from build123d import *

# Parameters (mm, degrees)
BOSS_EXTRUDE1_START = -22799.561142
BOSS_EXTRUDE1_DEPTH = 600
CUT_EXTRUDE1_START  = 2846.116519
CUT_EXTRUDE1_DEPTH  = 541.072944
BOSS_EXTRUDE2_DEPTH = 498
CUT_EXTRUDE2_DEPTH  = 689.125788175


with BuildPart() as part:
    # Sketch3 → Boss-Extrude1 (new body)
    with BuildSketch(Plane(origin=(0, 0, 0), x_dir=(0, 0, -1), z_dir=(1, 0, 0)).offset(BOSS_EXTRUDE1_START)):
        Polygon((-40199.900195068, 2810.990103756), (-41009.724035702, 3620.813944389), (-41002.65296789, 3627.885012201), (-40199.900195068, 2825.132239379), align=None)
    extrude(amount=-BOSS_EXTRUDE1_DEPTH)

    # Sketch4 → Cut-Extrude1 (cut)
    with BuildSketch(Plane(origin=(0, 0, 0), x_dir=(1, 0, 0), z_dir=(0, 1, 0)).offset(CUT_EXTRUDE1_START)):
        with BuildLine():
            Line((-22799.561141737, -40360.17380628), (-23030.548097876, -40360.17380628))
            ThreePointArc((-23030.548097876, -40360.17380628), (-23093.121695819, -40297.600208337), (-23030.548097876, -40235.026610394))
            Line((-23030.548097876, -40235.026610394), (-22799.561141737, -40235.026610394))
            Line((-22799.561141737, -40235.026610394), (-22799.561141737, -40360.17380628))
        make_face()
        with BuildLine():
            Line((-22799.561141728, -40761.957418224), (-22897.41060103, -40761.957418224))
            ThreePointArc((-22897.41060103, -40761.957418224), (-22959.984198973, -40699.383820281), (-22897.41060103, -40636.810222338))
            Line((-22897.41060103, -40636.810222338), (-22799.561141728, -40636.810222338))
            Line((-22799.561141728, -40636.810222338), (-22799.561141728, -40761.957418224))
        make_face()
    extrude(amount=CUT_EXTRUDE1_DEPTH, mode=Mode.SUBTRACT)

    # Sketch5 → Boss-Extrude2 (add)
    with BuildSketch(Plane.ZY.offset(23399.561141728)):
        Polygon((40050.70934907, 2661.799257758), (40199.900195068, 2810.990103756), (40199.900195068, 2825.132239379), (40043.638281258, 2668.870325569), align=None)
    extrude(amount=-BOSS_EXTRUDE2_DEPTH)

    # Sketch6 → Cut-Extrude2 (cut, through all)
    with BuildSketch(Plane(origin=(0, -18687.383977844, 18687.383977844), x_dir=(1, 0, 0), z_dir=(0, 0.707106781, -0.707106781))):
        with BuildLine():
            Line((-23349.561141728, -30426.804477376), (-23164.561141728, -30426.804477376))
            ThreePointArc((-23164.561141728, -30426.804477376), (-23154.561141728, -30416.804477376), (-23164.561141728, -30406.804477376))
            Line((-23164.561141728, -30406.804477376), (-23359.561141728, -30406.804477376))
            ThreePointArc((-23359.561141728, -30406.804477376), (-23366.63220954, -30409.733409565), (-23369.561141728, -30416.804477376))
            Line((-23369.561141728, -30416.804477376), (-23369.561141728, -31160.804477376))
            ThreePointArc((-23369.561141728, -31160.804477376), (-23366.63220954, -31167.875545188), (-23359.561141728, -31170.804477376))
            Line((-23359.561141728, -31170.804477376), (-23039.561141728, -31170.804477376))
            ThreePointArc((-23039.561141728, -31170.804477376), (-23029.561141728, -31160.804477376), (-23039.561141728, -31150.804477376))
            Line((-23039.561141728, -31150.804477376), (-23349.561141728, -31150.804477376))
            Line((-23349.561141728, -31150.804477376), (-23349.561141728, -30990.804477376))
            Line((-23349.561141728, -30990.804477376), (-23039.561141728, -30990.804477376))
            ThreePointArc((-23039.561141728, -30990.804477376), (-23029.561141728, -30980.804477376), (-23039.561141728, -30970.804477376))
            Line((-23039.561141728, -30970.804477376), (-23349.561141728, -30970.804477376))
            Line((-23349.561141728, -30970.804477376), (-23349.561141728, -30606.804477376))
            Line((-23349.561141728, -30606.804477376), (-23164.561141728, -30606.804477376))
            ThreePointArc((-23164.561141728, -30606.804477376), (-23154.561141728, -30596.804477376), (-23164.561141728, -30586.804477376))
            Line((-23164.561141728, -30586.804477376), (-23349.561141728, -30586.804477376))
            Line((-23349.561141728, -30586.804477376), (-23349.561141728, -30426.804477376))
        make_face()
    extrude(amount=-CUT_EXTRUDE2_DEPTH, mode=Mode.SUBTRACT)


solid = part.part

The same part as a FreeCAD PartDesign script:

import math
import FreeCAD as App
import Part
import Sketcher
Q = App.Units.Quantity

doc = App.newDocument("Part")
body = doc.addObject("PartDesign::Body", "Body")

# Sketch on YZ plane
sketch1 = body.newObject("Sketcher::SketchObject", "Sketch")
sketch1.AttachmentSupport = (doc.getObject("YZ_Plane"), [""])
sketch1.MapMode = "FlatFace"
sketch1.AttachmentOffset = App.Placement(App.Vector(0, 0, -22799.561142), App.Rotation())
sketch1.addGeometry(Part.LineSegment(App.Vector(3621, 41010, 0), App.Vector(2811, 40200, 0)), False)
sketch1.addGeometry(Part.LineSegment(App.Vector(2811, 40200, 0), App.Vector(2825, 40200, 0)), False)
sketch1.addGeometry(Part.LineSegment(App.Vector(2825, 40200, 0), App.Vector(3628, 41003, 0)), False)
sketch1.addGeometry(Part.LineSegment(App.Vector(3628, 41003, 0), App.Vector(3621, 41010, 0)), False)
sketch1.addConstraint(Sketcher.Constraint("Coincident", 0, 2, 1, 1))
sketch1.addConstraint(Sketcher.Constraint("Coincident", 1, 2, 2, 1))
sketch1.addConstraint(Sketcher.Constraint("Coincident", 2, 2, 3, 1))
sketch1.addConstraint(Sketcher.Constraint("Coincident", 3, 2, 0, 1))
sketch1.addConstraint(Sketcher.Constraint("Horizontal", 1))
sketch1.addConstraint(Sketcher.Constraint("Parallel", 0, 2))
sketch1.addConstraint(Sketcher.Constraint("Perpendicular", 2, 3))
sketch1.addConstraint(Sketcher.Constraint("Angle", 0, Q("-135 deg")))
sketch1.addConstraint(Sketcher.Constraint("Distance", 3, Q("10 mm")))
sketch1.addConstraint(Sketcher.Constraint("Distance", 0, Q("1145.263859 mm")))
sketch1.addConstraint(Sketcher.Constraint("DistanceX", -1, 1, 1, 2, Q("2825.132239 mm")))
sketch1.addConstraint(Sketcher.Constraint("DistanceY", -1, 1, 0, 2, Q("40199.900195 mm")))
pad1 = body.newObject("PartDesign::Pad", "Pad")
pad1.Profile = sketch1
pad1.Length = 600
pad1.Reversed = True

# Sketch on XZ plane
sketch2 = body.newObject("Sketcher::SketchObject", "Sketch001")
sketch2.AttachmentSupport = (doc.getObject("XZ_Plane"), [""])
sketch2.MapMode = "FlatFace"
sketch2.AttachmentOffset = App.Placement(App.Vector(0, 0, -2846.116519), App.Rotation())
sketch2.addGeometry(Part.LineSegment(App.Vector(-23031, 40360, 0), App.Vector(-22800, 40360, 0)), False)
sketch2.addGeometry(Part.LineSegment(App.Vector(-22800, 40360, 0), App.Vector(-22800, 40235, 0)), False)
sketch2.addGeometry(Part.LineSegment(App.Vector(-22800, 40235, 0), App.Vector(-23031, 40235, 0)), False)
sketch2.addGeometry(Part.ArcOfCircle(Part.Circle(App.Vector(-23031, 40298, 0), App.Vector(0, 0, 1), 63), math.radians(90), math.radians(270)), False)
sketch2.addGeometry(Part.LineSegment(App.Vector(-22897, 40762, 0), App.Vector(-22800, 40762, 0)), False)
sketch2.addGeometry(Part.LineSegment(App.Vector(-22800, 40762, 0), App.Vector(-22800, 40637, 0)), False)
sketch2.addGeometry(Part.LineSegment(App.Vector(-22800, 40637, 0), App.Vector(-22897, 40637, 0)), False)
sketch2.addGeometry(Part.ArcOfCircle(Part.Circle(App.Vector(-22897, 40699, 0), App.Vector(0, 0, 1), 63), math.radians(90), math.radians(270)), False)
sketch2.addConstraint(Sketcher.Constraint("Coincident", 0, 2, 1, 1))
sketch2.addConstraint(Sketcher.Constraint("Coincident", 1, 2, 2, 1))
sketch2.addConstraint(Sketcher.Constraint("Tangent", 2, 2, 3, 2))
sketch2.addConstraint(Sketcher.Constraint("Tangent", 3, 1, 0, 1))
sketch2.addConstraint(Sketcher.Constraint("Coincident", 4, 2, 5, 1))
sketch2.addConstraint(Sketcher.Constraint("Coincident", 5, 2, 6, 1))
sketch2.addConstraint(Sketcher.Constraint("Tangent", 6, 2, 7, 2))
sketch2.addConstraint(Sketcher.Constraint("Tangent", 7, 1, 4, 1))
sketch2.addConstraint(Sketcher.Constraint("Horizontal", 0))
sketch2.addConstraint(Sketcher.Constraint("Vertical", 1))
sketch2.addConstraint(Sketcher.Constraint("Horizontal", 2))
sketch2.addConstraint(Sketcher.Constraint("Horizontal", 4))
sketch2.addConstraint(Sketcher.Constraint("Vertical", 5))
sketch2.addConstraint(Sketcher.Constraint("Horizontal", 6))
sketch2.addConstraint(Sketcher.Constraint("Equal", 3, 7))
sketch2.addConstraint(Sketcher.Constraint("Vertical", 1, 2, 4, 2))
sketch2.addConstraint(Sketcher.Constraint("Radius", 3, Q("62.573598 mm")))
sketch2.addConstraint(Sketcher.Constraint("DistanceX", 4, 1, 4, 2, Q("97.849459 mm")))
sketch2.addConstraint(Sketcher.Constraint("DistanceX", 7, 3, -1, 1, Q("22897.410601 mm")))
sketch2.addConstraint(Sketcher.Constraint("DistanceX", 0, 1, 0, 2, Q("230.986956 mm")))
sketch2.addConstraint(Sketcher.Constraint("DistanceY", -1, 1, 3, 3, Q("40297.600208 mm")))
sketch2.addConstraint(Sketcher.Constraint("DistanceY", -1, 1, 7, 3, Q("40699.38382 mm")))
pocket1 = body.newObject("PartDesign::Pocket", "Pocket")
pocket1.Profile = sketch2
pocket1.Length = 541.072944

# Sketch on YZ plane
sketch3 = body.newObject("Sketcher::SketchObject", "Sketch002")
sketch3.AttachmentSupport = (doc.getObject("YZ_Plane"), [""])
sketch3.MapMode = "FlatFace"
sketch3.AttachmentOffset = App.Placement(App.Vector(0, 0, -23399.561142), App.Rotation())
sketch3.addGeometry(Part.LineSegment(App.Vector(2662, 40051, 0), App.Vector(2811, 40200, 0)), False)
sketch3.addGeometry(Part.LineSegment(App.Vector(2811, 40200, 0), App.Vector(2825, 40200, 0)), False)
sketch3.addGeometry(Part.LineSegment(App.Vector(2825, 40200, 0), App.Vector(2669, 40044, 0)), False)
sketch3.addGeometry(Part.LineSegment(App.Vector(2669, 40044, 0), App.Vector(2662, 40051, 0)), False)
sketch3.addConstraint(Sketcher.Constraint("Coincident", 0, 2, 1, 1))
sketch3.addConstraint(Sketcher.Constraint("Coincident", 1, 2, 2, 1))
sketch3.addConstraint(Sketcher.Constraint("Coincident", 2, 2, 3, 1))
sketch3.addConstraint(Sketcher.Constraint("Coincident", 3, 2, 0, 1))
sketch3.addConstraint(Sketcher.Constraint("Horizontal", 1))
sketch3.addConstraint(Sketcher.Constraint("Parallel", 0, 2))
sketch3.addConstraint(Sketcher.Constraint("Perpendicular", 2, 3))
sketch3.addConstraint(Sketcher.Constraint("Angle", 0, Q("45 deg")))
sketch3.addConstraint(Sketcher.Constraint("Distance", 3, Q("10 mm")))
sketch3.addConstraint(Sketcher.Constraint("DistanceX", -1, 1, 1, 2, Q("2825.132239 mm")))
sketch3.addConstraint(Sketcher.Constraint("DistanceY", -1, 1, 2, 2, Q("40043.638281 mm")))
sketch3.addConstraint(Sketcher.Constraint("DistanceX", 2, 2, 0, 2, Q("142.119778 mm")))
pad2 = body.newObject("PartDesign::Pad", "Pad001")
pad2.Profile = sketch3
pad2.Length = 498

# Sketch on an angled plane
sketch4 = body.newObject("Sketcher::SketchObject", "Sketch003")
sketch4.Placement = App.Placement(App.Vector(0, -18687.383978, 18687.383978), App.Rotation(App.Vector(1, 0, 0), App.Vector(0, -0.707106781, -0.707106781), App.Vector(0, 0.707106781, -0.707106781), "ZXY"))
sketch4.addGeometry(Part.LineSegment(App.Vector(-23350, -30427, 0), App.Vector(-23165, -30427, 0)), False)
sketch4.addGeometry(Part.ArcOfCircle(Part.Circle(App.Vector(-23165, -30417, 0), App.Vector(0, 0, 1), 10), math.radians(-90), math.radians(90)), False)
sketch4.addGeometry(Part.LineSegment(App.Vector(-23165, -30407, 0), App.Vector(-23360, -30407, 0)), False)
sketch4.addGeometry(Part.ArcOfCircle(Part.Circle(App.Vector(-23360, -30417, 0), App.Vector(0, 0, 1), 10), math.radians(90), math.radians(180)), False)
sketch4.addGeometry(Part.LineSegment(App.Vector(-23370, -30417, 0), App.Vector(-23370, -31161, 0)), False)
sketch4.addGeometry(Part.ArcOfCircle(Part.Circle(App.Vector(-23360, -31161, 0), App.Vector(0, 0, 1), 10), math.radians(180), math.radians(270)), False)
sketch4.addGeometry(Part.LineSegment(App.Vector(-23360, -31171, 0), App.Vector(-23040, -31171, 0)), False)
sketch4.addGeometry(Part.ArcOfCircle(Part.Circle(App.Vector(-23040, -31161, 0), App.Vector(0, 0, 1), 10), math.radians(-90), math.radians(90)), False)
sketch4.addGeometry(Part.LineSegment(App.Vector(-23040, -31151, 0), App.Vector(-23350, -31151, 0)), False)
sketch4.addGeometry(Part.LineSegment(App.Vector(-23350, -31151, 0), App.Vector(-23350, -30991, 0)), False)
sketch4.addGeometry(Part.LineSegment(App.Vector(-23350, -30991, 0), App.Vector(-23040, -30991, 0)), False)
sketch4.addGeometry(Part.ArcOfCircle(Part.Circle(App.Vector(-23040, -30981, 0), App.Vector(0, 0, 1), 10), math.radians(-90), math.radians(90)), False)
sketch4.addGeometry(Part.LineSegment(App.Vector(-23040, -30971, 0), App.Vector(-23350, -30971, 0)), False)
sketch4.addGeometry(Part.LineSegment(App.Vector(-23350, -30971, 0), App.Vector(-23350, -30607, 0)), False)
sketch4.addGeometry(Part.LineSegment(App.Vector(-23350, -30607, 0), App.Vector(-23165, -30607, 0)), False)
sketch4.addGeometry(Part.ArcOfCircle(Part.Circle(App.Vector(-23165, -30597, 0), App.Vector(0, 0, 1), 10), math.radians(-90), math.radians(90)), False)
sketch4.addGeometry(Part.LineSegment(App.Vector(-23165, -30587, 0), App.Vector(-23350, -30587, 0)), False)
sketch4.addGeometry(Part.LineSegment(App.Vector(-23350, -30587, 0), App.Vector(-23350, -30427, 0)), False)
sketch4.addConstraint(Sketcher.Constraint("Tangent", 0, 2, 1, 1))
sketch4.addConstraint(Sketcher.Constraint("Tangent", 1, 2, 2, 1))
sketch4.addConstraint(Sketcher.Constraint("Tangent", 2, 2, 3, 1))
sketch4.addConstraint(Sketcher.Constraint("Tangent", 3, 2, 4, 1))
sketch4.addConstraint(Sketcher.Constraint("Tangent", 4, 2, 5, 1))
sketch4.addConstraint(Sketcher.Constraint("Tangent", 5, 2, 6, 1))
sketch4.addConstraint(Sketcher.Constraint("Tangent", 6, 2, 7, 1))
sketch4.addConstraint(Sketcher.Constraint("Tangent", 7, 2, 8, 1))
sketch4.addConstraint(Sketcher.Constraint("Coincident", 8, 2, 9, 1))
sketch4.addConstraint(Sketcher.Constraint("Coincident", 9, 2, 10, 1))
sketch4.addConstraint(Sketcher.Constraint("Tangent", 10, 2, 11, 1))
sketch4.addConstraint(Sketcher.Constraint("Tangent", 11, 2, 12, 1))
sketch4.addConstraint(Sketcher.Constraint("Coincident", 12, 2, 13, 1))
sketch4.addConstraint(Sketcher.Constraint("Coincident", 13, 2, 14, 1))
sketch4.addConstraint(Sketcher.Constraint("Tangent", 14, 2, 15, 1))
sketch4.addConstraint(Sketcher.Constraint("Tangent", 15, 2, 16, 1))
sketch4.addConstraint(Sketcher.Constraint("Coincident", 16, 2, 17, 1))
sketch4.addConstraint(Sketcher.Constraint("Coincident", 17, 2, 0, 1))
sketch4.addConstraint(Sketcher.Constraint("Horizontal", 0))
sketch4.addConstraint(Sketcher.Constraint("Horizontal", 2))
sketch4.addConstraint(Sketcher.Constraint("Vertical", 4))
sketch4.addConstraint(Sketcher.Constraint("Horizontal", 6))
sketch4.addConstraint(Sketcher.Constraint("Horizontal", 8))
sketch4.addConstraint(Sketcher.Constraint("Vertical", 9))
sketch4.addConstraint(Sketcher.Constraint("Horizontal", 10))
sketch4.addConstraint(Sketcher.Constraint("Horizontal", 12))
sketch4.addConstraint(Sketcher.Constraint("Vertical", 13))
sketch4.addConstraint(Sketcher.Constraint("Horizontal", 14))
sketch4.addConstraint(Sketcher.Constraint("Horizontal", 16))
sketch4.addConstraint(Sketcher.Constraint("Vertical", 17))
sketch4.addConstraint(Sketcher.Constraint("Equal", 1, 3))
sketch4.addConstraint(Sketcher.Constraint("Equal", 3, 5))
sketch4.addConstraint(Sketcher.Constraint("Equal", 5, 7))
sketch4.addConstraint(Sketcher.Constraint("Equal", 7, 11))
sketch4.addConstraint(Sketcher.Constraint("Equal", 11, 15))
sketch4.addConstraint(Sketcher.Constraint("Vertical", 7, 3, 11, 3))
sketch4.addConstraint(Sketcher.Constraint("Vertical", 1, 3, 15, 3))
sketch4.addConstraint(Sketcher.Constraint("Vertical", 9, 2, 12, 2))
sketch4.addConstraint(Sketcher.Constraint("Vertical", 13, 2, 16, 2))
sketch4.addConstraint(Sketcher.Constraint("Equal", 9, 17))
sketch4.addConstraint(Sketcher.Constraint("Radius", 1, Q("10 mm")))
sketch4.addConstraint(Sketcher.Constraint("DistanceX", 0, 1, 0, 2, Q("185 mm")))
sketch4.addConstraint(Sketcher.Constraint("DistanceX", 2, 2, 2, 1, Q("195 mm")))
sketch4.addConstraint(Sketcher.Constraint("DistanceX", 6, 1, 6, 2, Q("320 mm")))
sketch4.addConstraint(Sketcher.Constraint("DistanceY", 4, 2, 4, 1, Q("744 mm")))
sketch4.addConstraint(Sketcher.Constraint("DistanceY", 9, 1, 9, 2, Q("160 mm")))
sketch4.addConstraint(Sketcher.Constraint("DistanceX", 1, 3, -1, 1, Q("23164.561142 mm")))
sketch4.addConstraint(Sketcher.Constraint("DistanceY", 1, 3, -1, 1, Q("30416.804461 mm")))
pocket2 = body.newObject("PartDesign::Pocket", "Pocket001")
pocket2.Profile = sketch4
pocket2.Type = "ThroughAll"

doc.recompute()
